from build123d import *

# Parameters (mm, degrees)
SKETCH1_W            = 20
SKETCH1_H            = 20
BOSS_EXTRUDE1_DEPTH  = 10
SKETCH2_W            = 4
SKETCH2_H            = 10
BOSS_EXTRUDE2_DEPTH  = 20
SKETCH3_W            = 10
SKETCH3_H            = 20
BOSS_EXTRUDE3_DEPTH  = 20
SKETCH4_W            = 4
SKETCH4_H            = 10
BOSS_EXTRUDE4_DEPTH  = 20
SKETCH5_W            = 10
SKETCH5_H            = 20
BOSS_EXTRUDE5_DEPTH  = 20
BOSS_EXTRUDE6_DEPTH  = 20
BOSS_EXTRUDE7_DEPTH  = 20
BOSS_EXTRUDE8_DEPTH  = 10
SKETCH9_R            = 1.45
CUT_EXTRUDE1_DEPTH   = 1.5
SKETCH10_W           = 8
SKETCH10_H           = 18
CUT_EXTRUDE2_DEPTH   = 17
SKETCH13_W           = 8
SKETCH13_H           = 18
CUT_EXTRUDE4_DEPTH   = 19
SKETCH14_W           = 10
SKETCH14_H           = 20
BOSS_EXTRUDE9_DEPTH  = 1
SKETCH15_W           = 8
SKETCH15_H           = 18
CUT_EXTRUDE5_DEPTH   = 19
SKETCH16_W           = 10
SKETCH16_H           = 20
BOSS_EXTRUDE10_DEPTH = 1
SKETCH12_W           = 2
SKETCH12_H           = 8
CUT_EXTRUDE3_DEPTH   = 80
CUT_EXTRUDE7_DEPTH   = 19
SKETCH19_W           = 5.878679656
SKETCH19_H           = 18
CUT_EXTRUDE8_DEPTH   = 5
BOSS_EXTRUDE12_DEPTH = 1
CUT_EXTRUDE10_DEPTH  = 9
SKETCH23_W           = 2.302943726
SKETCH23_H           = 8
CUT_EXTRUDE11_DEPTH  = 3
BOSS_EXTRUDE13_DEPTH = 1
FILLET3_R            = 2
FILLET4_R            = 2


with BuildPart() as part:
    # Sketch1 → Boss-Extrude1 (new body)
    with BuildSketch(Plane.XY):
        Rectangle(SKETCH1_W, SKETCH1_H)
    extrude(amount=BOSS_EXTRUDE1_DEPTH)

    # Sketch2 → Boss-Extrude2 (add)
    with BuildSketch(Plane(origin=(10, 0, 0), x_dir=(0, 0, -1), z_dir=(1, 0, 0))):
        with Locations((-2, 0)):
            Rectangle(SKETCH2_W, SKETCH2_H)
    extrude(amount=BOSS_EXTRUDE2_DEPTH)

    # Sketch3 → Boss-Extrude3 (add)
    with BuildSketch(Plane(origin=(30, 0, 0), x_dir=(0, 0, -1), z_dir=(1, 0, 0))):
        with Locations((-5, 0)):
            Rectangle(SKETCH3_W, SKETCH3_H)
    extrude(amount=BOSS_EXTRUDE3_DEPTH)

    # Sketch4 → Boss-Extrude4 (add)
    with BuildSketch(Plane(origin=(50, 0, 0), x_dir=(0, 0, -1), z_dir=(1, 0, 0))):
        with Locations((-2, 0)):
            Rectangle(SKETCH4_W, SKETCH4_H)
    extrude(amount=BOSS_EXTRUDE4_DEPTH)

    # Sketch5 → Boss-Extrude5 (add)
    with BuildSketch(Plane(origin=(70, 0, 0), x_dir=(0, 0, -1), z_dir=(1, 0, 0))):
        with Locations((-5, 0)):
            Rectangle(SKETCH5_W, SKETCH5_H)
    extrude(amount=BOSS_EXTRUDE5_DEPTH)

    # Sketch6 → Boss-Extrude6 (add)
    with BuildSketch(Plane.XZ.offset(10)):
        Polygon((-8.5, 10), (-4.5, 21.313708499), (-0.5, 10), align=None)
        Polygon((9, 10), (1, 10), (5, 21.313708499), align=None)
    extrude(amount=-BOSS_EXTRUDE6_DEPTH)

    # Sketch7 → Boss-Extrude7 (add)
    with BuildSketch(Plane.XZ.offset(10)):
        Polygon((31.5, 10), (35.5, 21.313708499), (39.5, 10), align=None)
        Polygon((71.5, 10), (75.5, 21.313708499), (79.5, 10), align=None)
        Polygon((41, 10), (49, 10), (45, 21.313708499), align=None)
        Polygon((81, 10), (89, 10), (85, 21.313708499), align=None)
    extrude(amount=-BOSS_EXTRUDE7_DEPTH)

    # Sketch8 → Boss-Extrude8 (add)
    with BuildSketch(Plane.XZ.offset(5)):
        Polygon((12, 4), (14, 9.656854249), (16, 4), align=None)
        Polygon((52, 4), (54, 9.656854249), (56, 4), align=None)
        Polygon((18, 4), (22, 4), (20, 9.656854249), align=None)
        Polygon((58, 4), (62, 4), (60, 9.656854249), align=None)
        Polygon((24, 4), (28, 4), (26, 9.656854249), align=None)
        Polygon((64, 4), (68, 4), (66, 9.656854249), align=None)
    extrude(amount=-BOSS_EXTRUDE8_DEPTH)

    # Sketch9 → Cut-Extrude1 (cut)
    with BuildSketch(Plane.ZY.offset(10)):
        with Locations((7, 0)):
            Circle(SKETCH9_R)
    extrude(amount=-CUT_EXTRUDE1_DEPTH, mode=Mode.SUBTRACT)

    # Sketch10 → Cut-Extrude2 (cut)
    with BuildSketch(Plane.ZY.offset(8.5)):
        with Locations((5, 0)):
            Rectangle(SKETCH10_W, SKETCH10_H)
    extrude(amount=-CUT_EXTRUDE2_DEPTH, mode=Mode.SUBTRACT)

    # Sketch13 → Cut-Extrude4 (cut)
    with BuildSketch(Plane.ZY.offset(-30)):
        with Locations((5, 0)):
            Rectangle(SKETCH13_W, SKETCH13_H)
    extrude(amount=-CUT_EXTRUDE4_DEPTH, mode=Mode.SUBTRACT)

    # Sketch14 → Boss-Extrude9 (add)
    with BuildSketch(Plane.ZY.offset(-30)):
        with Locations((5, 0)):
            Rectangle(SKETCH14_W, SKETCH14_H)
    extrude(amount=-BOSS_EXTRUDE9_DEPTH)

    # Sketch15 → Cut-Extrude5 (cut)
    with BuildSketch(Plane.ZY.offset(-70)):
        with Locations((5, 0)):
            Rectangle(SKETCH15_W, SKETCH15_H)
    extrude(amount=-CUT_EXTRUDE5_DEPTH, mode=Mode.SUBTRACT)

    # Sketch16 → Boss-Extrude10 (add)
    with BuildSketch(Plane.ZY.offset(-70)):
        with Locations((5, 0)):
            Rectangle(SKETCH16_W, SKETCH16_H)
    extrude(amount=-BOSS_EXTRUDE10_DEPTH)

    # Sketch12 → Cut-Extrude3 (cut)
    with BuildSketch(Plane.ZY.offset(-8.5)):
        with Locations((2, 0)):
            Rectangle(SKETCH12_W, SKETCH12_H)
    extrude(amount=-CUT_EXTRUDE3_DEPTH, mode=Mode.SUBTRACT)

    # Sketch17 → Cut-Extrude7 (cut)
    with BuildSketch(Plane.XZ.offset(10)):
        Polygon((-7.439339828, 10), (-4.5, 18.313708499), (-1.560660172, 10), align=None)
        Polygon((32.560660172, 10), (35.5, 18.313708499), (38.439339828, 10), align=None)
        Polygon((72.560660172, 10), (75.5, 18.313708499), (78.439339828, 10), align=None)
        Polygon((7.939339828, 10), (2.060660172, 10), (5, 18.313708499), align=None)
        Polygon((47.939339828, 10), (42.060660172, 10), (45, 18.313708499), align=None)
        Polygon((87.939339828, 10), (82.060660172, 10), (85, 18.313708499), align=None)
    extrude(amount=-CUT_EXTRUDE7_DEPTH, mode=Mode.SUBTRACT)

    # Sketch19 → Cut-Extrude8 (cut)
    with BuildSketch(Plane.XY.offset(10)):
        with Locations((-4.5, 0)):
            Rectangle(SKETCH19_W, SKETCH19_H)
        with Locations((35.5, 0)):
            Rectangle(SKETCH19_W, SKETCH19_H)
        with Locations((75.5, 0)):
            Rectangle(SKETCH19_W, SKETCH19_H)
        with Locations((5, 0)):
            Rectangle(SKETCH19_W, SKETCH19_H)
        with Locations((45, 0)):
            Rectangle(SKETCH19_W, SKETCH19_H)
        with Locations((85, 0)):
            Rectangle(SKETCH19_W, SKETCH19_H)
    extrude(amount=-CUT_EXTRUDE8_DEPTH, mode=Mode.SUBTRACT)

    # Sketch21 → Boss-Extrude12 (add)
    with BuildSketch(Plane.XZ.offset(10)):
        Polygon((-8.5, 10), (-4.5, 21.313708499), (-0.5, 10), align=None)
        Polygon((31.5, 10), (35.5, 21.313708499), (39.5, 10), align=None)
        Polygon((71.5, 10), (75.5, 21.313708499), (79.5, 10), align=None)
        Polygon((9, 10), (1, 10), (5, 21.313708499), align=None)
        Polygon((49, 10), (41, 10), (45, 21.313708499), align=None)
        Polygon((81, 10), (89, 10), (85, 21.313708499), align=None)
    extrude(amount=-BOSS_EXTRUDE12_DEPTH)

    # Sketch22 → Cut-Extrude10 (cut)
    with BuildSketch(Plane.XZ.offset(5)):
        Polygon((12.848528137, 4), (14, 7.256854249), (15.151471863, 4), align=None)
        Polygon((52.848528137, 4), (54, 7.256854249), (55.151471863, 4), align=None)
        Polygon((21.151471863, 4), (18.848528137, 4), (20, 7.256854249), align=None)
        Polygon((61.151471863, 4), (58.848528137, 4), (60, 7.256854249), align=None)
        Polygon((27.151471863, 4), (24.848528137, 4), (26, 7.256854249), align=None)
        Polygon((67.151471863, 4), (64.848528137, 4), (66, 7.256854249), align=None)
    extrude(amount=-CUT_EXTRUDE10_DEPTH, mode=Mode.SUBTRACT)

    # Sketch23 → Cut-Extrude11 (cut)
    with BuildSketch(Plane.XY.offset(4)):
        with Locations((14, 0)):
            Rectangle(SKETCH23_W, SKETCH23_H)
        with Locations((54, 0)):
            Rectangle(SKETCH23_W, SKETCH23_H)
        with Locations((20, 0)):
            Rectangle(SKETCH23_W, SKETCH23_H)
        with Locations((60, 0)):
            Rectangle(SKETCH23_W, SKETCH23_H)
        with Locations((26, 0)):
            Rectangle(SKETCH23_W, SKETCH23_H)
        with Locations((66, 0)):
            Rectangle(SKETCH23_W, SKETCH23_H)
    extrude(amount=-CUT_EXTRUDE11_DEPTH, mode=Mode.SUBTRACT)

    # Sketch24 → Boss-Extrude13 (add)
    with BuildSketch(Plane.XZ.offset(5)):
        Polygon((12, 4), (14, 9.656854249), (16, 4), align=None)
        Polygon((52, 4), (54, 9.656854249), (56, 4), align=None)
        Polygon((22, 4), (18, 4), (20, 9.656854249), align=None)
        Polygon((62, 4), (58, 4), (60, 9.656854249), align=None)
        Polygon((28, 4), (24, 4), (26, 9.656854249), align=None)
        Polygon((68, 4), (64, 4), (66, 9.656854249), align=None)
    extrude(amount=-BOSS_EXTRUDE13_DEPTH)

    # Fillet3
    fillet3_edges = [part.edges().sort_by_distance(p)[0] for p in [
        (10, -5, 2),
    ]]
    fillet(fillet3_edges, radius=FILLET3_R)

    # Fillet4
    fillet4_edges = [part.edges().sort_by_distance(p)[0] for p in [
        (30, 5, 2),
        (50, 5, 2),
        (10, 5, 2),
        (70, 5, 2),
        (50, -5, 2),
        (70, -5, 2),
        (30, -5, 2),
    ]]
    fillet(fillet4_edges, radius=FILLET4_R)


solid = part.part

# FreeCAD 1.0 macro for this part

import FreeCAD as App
import Part
import Sketcher
from FreeCAD import Vector
Q = App.Units.Quantity


def edges_at(feature, points):
    """Names of the edges that pass closest to the given points."""
    edges = feature.Shape.Edges
    near = lambda p: min(range(len(edges)), key=lambda i: edges[i].distToShape(Part.Vertex(*p))[0])
    return sorted({f"Edge{near(p) + 1}" for p in points})


def add_polygon(sketch, points):
    """Adds a closed chain of lines whose ends are joined by coincident constraints."""
    first, n = sketch.GeometryCount, len(points)
    for a, b in zip(points, points[1:] + points[:1]):
        sketch.addGeometry(Part.LineSegment(App.Vector(*a, 0), App.Vector(*b, 0)), False)
    for i in range(n):
        sketch.addConstraint(Sketcher.Constraint("Coincident", first + i, 2, first + (i + 1) % n, 1))

doc = App.newDocument("Part")
body = doc.addObject("PartDesign::Body", "Body")

# Sketch on XY plane
sketch1 = doc.addObject("Sketcher::SketchObject", "Sketch")
body.addObject(sketch1)
sketch1.AttachmentSupport = (doc.XY_Plane, [""])
sketch1.MapMode = "FlatFace"
add_polygon(sketch1, [(-10, 10), (-10, -10), (10, -10), (10, 10)])  # lines 0-3
sketch1.addConstraint(Sketcher.Constraint("Vertical", 0))
sketch1.addConstraint(Sketcher.Constraint("Horizontal", 1))
sketch1.addConstraint(Sketcher.Constraint("Vertical", 2))
sketch1.addConstraint(Sketcher.Constraint("Horizontal", 3))
sketch1.addConstraint(Sketcher.Constraint("Symmetric", 0, 2, 2, 2, -1, 1))
sketch1.addConstraint(Sketcher.Constraint("Equal", 3, 0))
sketch1.addConstraint(Sketcher.Constraint("DistanceX", 1, 1, 1, 2, Q("20 mm")))
pad1 = doc.addObject("PartDesign::Pad", "Pad")
body.addObject(pad1)
pad1.Profile = sketch1
pad1.Length = 10

# Sketch on YZ plane
sketch2 = doc.addObject("Sketcher::SketchObject", "Sketch001")
body.addObject(sketch2)
sketch2.AttachmentSupport = (doc.YZ_Plane, [""])
sketch2.MapMode = "FlatFace"
sketch2.AttachmentOffset = App.Placement(Vector(0, 0, 10), App.Rotation())
add_polygon(sketch2, [(5, 4), (-5, 4), (-5, 0), (5, 0)])  # lines 0-3
sketch2.addConstraint(Sketcher.Constraint("Horizontal", 0))
sketch2.addConstraint(Sketcher.Constraint("Vertical", 1))
sketch2.addConstraint(Sketcher.Constraint("Horizontal", 2))
sketch2.addConstraint(Sketcher.Constraint("Vertical", 3))
sketch2.addConstraint(Sketcher.Constraint("Symmetric", 1, 2, 2, 2, -1, 1))
sketch2.addConstraint(Sketcher.Constraint("DistanceX", 0, 2, 0, 1, Q("10 mm")))
sketch2.addConstraint(Sketcher.Constraint("DistanceY", 1, 2, 1, 1, Q("4 mm")))
pad2 = doc.addObject("PartDesign::Pad", "Pad001")
body.addObject(pad2)
pad2.Profile = sketch2
pad2.Length = 20

# Sketch on YZ plane
sketch3 = doc.addObject("Sketcher::SketchObject", "Sketch002")
body.addObject(sketch3)
sketch3.AttachmentSupport = (doc.YZ_Plane, [""])
sketch3.MapMode = "FlatFace"
sketch3.AttachmentOffset = App.Placement(Vector(0, 0, 30), App.Rotation())
add_polygon(sketch3, [(10, 10), (-10, 10), (-10, 0), (10, 0)])  # lines 0-3
sketch3.addConstraint(Sketcher.Constraint("Horizontal", 0))
sketch3.addConstraint(Sketcher.Constraint("Vertical", 1))
sketch3.addConstraint(Sketcher.Constraint("Horizontal", 2))
sketch3.addConstraint(Sketcher.Constraint("Vertical", 3))
sketch3.addConstraint(Sketcher.Constraint("Symmetric", 1, 2, 2, 2, -1, 1))
sketch3.addConstraint(Sketcher.Constraint("DistanceX", 0, 2, 0, 1, Q("20 mm")))
sketch3.addConstraint(Sketcher.Constraint("DistanceY", 1, 2, 1, 1, Q("10 mm")))
pad3 = doc.addObject("PartDesign::Pad", "Pad002")
body.addObject(pad3)
pad3.Profile = sketch3
pad3.Length = 20

# Sketch on YZ plane
sketch4 = doc.addObject("Sketcher::SketchObject", "Sketch003")
body.addObject(sketch4)
sketch4.AttachmentSupport = (doc.YZ_Plane, [""])
sketch4.MapMode = "FlatFace"
sketch4.AttachmentOffset = App.Placement(Vector(0, 0, 50), App.Rotation())
add_polygon(sketch4, [(5, 4), (-5, 4), (-5, 0), (5, 0)])  # lines 0-3
sketch4.addConstraint(Sketcher.Constraint("Horizontal", 0))
sketch4.addConstraint(Sketcher.Constraint("Vertical", 1))
sketch4.addConstraint(Sketcher.Constraint("Horizontal", 2))
sketch4.addConstraint(Sketcher.Constraint("Vertical", 3))
sketch4.addConstraint(Sketcher.Constraint("Symmetric", 1, 2, 2, 2, -1, 1))
sketch4.addConstraint(Sketcher.Constraint("DistanceX", 0, 2, 0, 1, Q("10 mm")))
sketch4.addConstraint(Sketcher.Constraint("DistanceY", 1, 2, 1, 1, Q("4 mm")))
pad4 = doc.addObject("PartDesign::Pad", "Pad003")
body.addObject(pad4)
pad4.Profile = sketch4
pad4.Length = 20

# Sketch on YZ plane
sketch5 = doc.addObject("Sketcher::SketchObject", "Sketch004")
body.addObject(sketch5)
sketch5.AttachmentSupport = (doc.YZ_Plane, [""])
sketch5.MapMode = "FlatFace"
sketch5.AttachmentOffset = App.Placement(Vector(0, 0, 70), App.Rotation())
add_polygon(sketch5, [(10, 10), (-10, 10), (-10, 0), (10, 0)])  # lines 0-3
sketch5.addConstraint(Sketcher.Constraint("Horizontal", 0))
sketch5.addConstraint(Sketcher.Constraint("Vertical", 1))
sketch5.addConstraint(Sketcher.Constraint("Horizontal", 2))
sketch5.addConstraint(Sketcher.Constraint("Vertical", 3))
sketch5.addConstraint(Sketcher.Constraint("Symmetric", 1, 2, 2, 2, -1, 1))
sketch5.addConstraint(Sketcher.Constraint("DistanceX", 0, 2, 0, 1, Q("20 mm")))
sketch5.addConstraint(Sketcher.Constraint("DistanceY", 1, 2, 1, 1, Q("10 mm")))
pad5 = doc.addObject("PartDesign::Pad", "Pad004")
body.addObject(pad5)
pad5.Profile = sketch5
pad5.Length = 20

# Sketch on XZ plane
sketch6 = doc.addObject("Sketcher::SketchObject", "Sketch005")
body.addObject(sketch6)
sketch6.AttachmentSupport = (doc.XZ_Plane, [""])
sketch6.MapMode = "FlatFace"
sketch6.AttachmentOffset = App.Placement(Vector(0, 0, 10), App.Rotation())
add_polygon(sketch6, [(-4, 21), (-8, 10), (0, 10)])  # lines 0-2
add_polygon(sketch6, [(1, 10), (9, 10), (5, 21)])  # lines 3-5
sketch6.addConstraint(Sketcher.Constraint("Horizontal", 1))
sketch6.addConstraint(Sketcher.Constraint("Horizontal", 3))
sketch6.addConstraint(Sketcher.Constraint("Parallel", 2, 4))
sketch6.addConstraint(Sketcher.Constraint("Parallel", 0, 5))
sketch6.addConstraint(Sketcher.Constraint("Horizontal", 1, 2, 3, 2))
sketch6.addConstraint(Sketcher.Constraint("Horizontal", 2, 2, 4, 2))
sketch6.addConstraint(Sketcher.Constraint("Equal", 0, 2))
sketch6.addConstraint(Sketcher.Constraint("DistanceX", 1, 1, 1, 2, Q("8 mm")))
sketch6.addConstraint(Sketcher.Constraint("Distance", 0, Q("12 mm")))
sketch6.addConstraint(Sketcher.Constraint("DistanceY", -1, 1, 0, 2, Q("10 mm")))
sketch6.addConstraint(Sketcher.Constraint("DistanceX", -1, 1, 3, 2, Q("9 mm")))
sketch6.addConstraint(Sketcher.Constraint("DistanceX", 0, 2, -1, 1, Q("8.5 mm")))
pad6 = doc.addObject("PartDesign::Pad", "Pad005")
body.addObject(pad6)
pad6.Profile = sketch6
pad6.Length = 20
pad6.Reversed = True

# Sketch on XZ plane
sketch7 = doc.addObject("Sketcher::SketchObject", "Sketch006")
body.addObject(sketch7)
sketch7.AttachmentSupport = (doc.XZ_Plane, [""])
sketch7.MapMode = "FlatFace"
sketch7.AttachmentOffset = App.Placement(Vector(0, 0, 10), App.Rotation())
add_polygon(sketch7, [(36, 21), (32, 10), (40, 10)])  # lines 0-2
add_polygon(sketch7, [(76, 21), (72, 10), (80, 10)])  # lines 3-5
add_polygon(sketch7, [(41, 10), (49, 10), (45, 21)])  # lines 6-8
add_polygon(sketch7, [(81, 10), (89, 10), (85, 21)])  # lines 9-11
sketch7.addConstraint(Sketcher.Constraint("Horizontal", 1))
sketch7.addConstraint(Sketcher.Constraint("Horizontal", 4))
sketch7.addConstraint(Sketcher.Constraint("Horizontal", 6))
sketch7.addConstraint(Sketcher.Constraint("Horizontal", 9))
sketch7.addConstraint(Sketcher.Constraint("Parallel", 0, 3))
sketch7.addConstraint(Sketcher.Constraint("Parallel", 2, 5))
sketch7.addConstraint(Sketcher.Constraint("Parallel", 5, 7))
sketch7.addConstraint(Sketcher.Constraint("Parallel", 3, 8))
sketch7.addConstraint(Sketcher.Constraint("Parallel", 7, 10))
sketch7.addConstraint(Sketcher.Constraint("Parallel", 8, 11))
sketch7.addConstraint(Sketcher.Constraint("Horizontal", 1, 2, 3, 2))
sketch7.addConstraint(Sketcher.Constraint("Horizontal", 2, 2, 5, 2))
sketch7.addConstraint(Sketcher.Constraint("Horizontal", 4, 2, 6, 2))
sketch7.addConstraint(Sketcher.Constraint("Horizontal", 5, 2, 7, 2))
sketch7.addConstraint(Sketcher.Constraint("Horizontal", 8, 2, 9, 2))
sketch7.addConstraint(Sketcher.Constraint("Horizontal", 7, 2, 10, 2))
sketch7.addConstraint(Sketcher.Constraint("Equal", 0, 2))
sketch7.addConstraint(Sketcher.Constraint("DistanceX", 1, 1, 1, 2, Q("8 mm")))
sketch7.addConstraint(Sketcher.Constraint("Distance", 0, Q("12 mm")))
sketch7.addConstraint(Sketcher.Constraint("DistanceY", -1, 1, 0, 2, Q("10 mm")))
sketch7.addConstraint(Sketcher.Constraint("DistanceX", -1, 1, 6, 2, Q("49 mm")))
sketch7.addConstraint(Sketcher.Constraint("DistanceX", -1, 1, 9, 2, Q("89 mm")))
sketch7.addConstraint(Sketcher.Constraint("DistanceX", 1, 2, 3, 2, Q("32 mm")))
sketch7.addConstraint(Sketcher.Constraint("DistanceX", -1, 1, 0, 2, Q("31.5 mm")))
pad7 = doc.addObject("PartDesign::Pad", "Pad006")
body.addObject(pad7)
pad7.Profile = sketch7
pad7.Length = 20
pad7.Reversed = True

# Sketch on XZ plane
sketch8 = doc.addObject("Sketcher::SketchObject", "Sketch007")
body.addObject(sketch8)
sketch8.AttachmentSupport = (doc.XZ_Plane, [""])
sketch8.MapMode = "FlatFace"
sketch8.AttachmentOffset = App.Placement(Vector(0, 0, 5), App.Rotation())
add_polygon(sketch8, [(14, 9.7), (12, 4), (16, 4)])  # lines 0-2
add_polygon(sketch8, [(54, 9.7), (52, 4), (56, 4)])  # lines 3-5
add_polygon(sketch8, [(18, 4), (22, 4), (20, 9.7)])  # lines 6-8
add_polygon(sketch8, [(58, 4), (62, 4), (60, 9.7)])  # lines 9-11
add_polygon(sketch8, [(24, 4), (28, 4), (26, 9.7)])  # lines 12-14
add_polygon(sketch8, [(64, 4), (68, 4), (66, 9.7)])  # lines 15-17
sketch8.addConstraint(Sketcher.Constraint("Horizontal", 1))
sketch8.addConstraint(Sketcher.Constraint("Horizontal", 4))
sketch8.addConstraint(Sketcher.Constraint("Horizontal", 6))
sketch8.addConstraint(Sketcher.Constraint("Horizontal", 9))
sketch8.addConstraint(Sketcher.Constraint("Horizontal", 12))
sketch8.addConstraint(Sketcher.Constraint("Horizontal", 15))
sketch8.addConstraint(Sketcher.Constraint("Parallel", 0, 3))
sketch8.addConstraint(Sketcher.Constraint("Parallel", 2, 5))
sketch8.addConstraint(Sketcher.Constraint("Parallel", 5, 7))
sketch8.addConstraint(Sketcher.Constraint("Parallel", 3, 8))
sketch8.addConstraint(Sketcher.Constraint("Parallel", 7, 10))
sketch8.addConstraint(Sketcher.Constraint("Parallel", 8, 11))
sketch8.addConstraint(Sketcher.Constraint("Parallel", 10, 13))
sketch8.addConstraint(Sketcher.Constraint("Parallel", 11, 14))
sketch8.addConstraint(Sketcher.Constraint("Parallel", 13, 16))
sketch8.addConstraint(Sketcher.Constraint("Parallel", 14, 17))
sketch8.addConstraint(Sketcher.Constraint("Horizontal", 1, 2, 3, 2))
sketch8.addConstraint(Sketcher.Constraint("Horizontal", 2, 2, 5, 2))
sketch8.addConstraint(Sketcher.Constraint("Horizontal", 4, 2, 6, 2))
sketch8.addConstraint(Sketcher.Constraint("Horizontal", 5, 2, 7, 2))
sketch8.addConstraint(Sketcher.Constraint("Horizontal", 8, 2, 9, 2))
sketch8.addConstraint(Sketcher.Constraint("Horizontal", 7, 2, 10, 2))
sketch8.addConstraint(Sketcher.Constraint("Horizontal", 11, 2, 12, 2))
sketch8.addConstraint(Sketcher.Constraint("Horizontal", 10, 2, 13, 2))
sketch8.addConstraint(Sketcher.Constraint("Horizontal", 14, 2, 15, 2))
sketch8.addConstraint(Sketcher.Constraint("Horizontal", 13, 2, 16, 2))
sketch8.addConstraint(Sketcher.Constraint("Equal", 0, 2))
sketch8.addConstraint(Sketcher.Constraint("DistanceX", 1, 1, 1, 2, Q("4 mm")))
sketch8.addConstraint(Sketcher.Constraint("Distance", 0, Q("6 mm")))
sketch8.addConstraint(Sketcher.Constraint("DistanceX", -1, 1, 0, 2, Q("12 mm")))
sketch8.addConstraint(Sketcher.Constraint("DistanceY", -1, 1, 0, 2, Q("4 mm")))
sketch8.addConstraint(Sketcher.Constraint("DistanceX", -1, 1, 3, 2, Q("52 mm")))
sketch8.addConstraint(Sketcher.Constraint("DistanceX", -1, 1, 6, 2, Q("22 mm")))
sketch8.addConstraint(Sketcher.Constraint("DistanceX", -1, 1, 9, 2, Q("62 mm")))
sketch8.addConstraint(Sketcher.Constraint("DistanceX", -1, 1, 12, 2, Q("28 mm")))
sketch8.addConstraint(Sketcher.Constraint("DistanceX", -1, 1, 15, 2, Q("68 mm")))
pad8 = doc.addObject("PartDesign::Pad", "Pad007")
body.addObject(pad8)
pad8.Profile = sketch8
pad8.Length = 10
pad8.Reversed = True

# Sketch on YZ plane
sketch9 = doc.addObject("Sketcher::SketchObject", "Sketch008")
body.addObject(sketch9)
sketch9.AttachmentSupport = (doc.YZ_Plane, [""])
sketch9.MapMode = "FlatFace"
sketch9.AttachmentOffset = App.Placement(Vector(0, 0, -10), App.Rotation())
sketch9.addGeometry(Part.Circle(Vector(0, 7, 0), Vector(0, 0, 1), 1.4), False)
sketch9.addConstraint(Sketcher.Constraint("PointOnObject", 0, 3, -2))
sketch9.addConstraint(Sketcher.Constraint("Diameter", 0, Q("2.9 mm")))
sketch9.addConstraint(Sketcher.Constraint("DistanceY", -1, 1, 0, 3, Q("7 mm")))
pocket1 = doc.addObject("PartDesign::Pocket", "Pocket")
body.addObject(pocket1)
pocket1.Profile = sketch9
pocket1.Length = 1.5
pocket1.Reversed = True

# Sketch on YZ plane
sketch10 = doc.addObject("Sketcher::SketchObject", "Sketch009")
body.addObject(sketch10)
sketch10.AttachmentSupport = (doc.YZ_Plane, [""])
sketch10.MapMode = "FlatFace"
sketch10.AttachmentOffset = App.Placement(Vector(0, 0, -8.5), App.Rotation())
add_polygon(sketch10, [(9, 1), (-9, 1), (-9, 9), (9, 9)])  # lines 0-3
sketch10.addConstraint(Sketcher.Constraint("Horizontal", 0))
sketch10.addConstraint(Sketcher.Constraint("Vertical", 1))
sketch10.addConstraint(Sketcher.Constraint("Horizontal", 2))
sketch10.addConstraint(Sketcher.Constraint("Vertical", 3))
sketch10.addConstraint(Sketcher.Constraint("DistanceX", 0, 2, 0, 1, Q("18 mm")))
sketch10.addConstraint(Sketcher.Constraint("DistanceY", 1, 1, 1, 2, Q("8 mm")))
sketch10.addConstraint(Sketcher.Constraint("DistanceX", 0, 2, -1, 1, Q("9 mm")))
sketch10.addConstraint(Sketcher.Constraint("DistanceY", -1, 1, 0, 2, Q("1 mm")))
pocket2 = doc.addObject("PartDesign::Pocket", "Pocket001")
body.addObject(pocket2)
pocket2.Profile = sketch10
pocket2.Length = 17
pocket2.Reversed = True

# Sketch on YZ plane
sketch11 = doc.addObject("Sketcher::SketchObject", "Sketch010")
body.addObject(sketch11)
sketch11.AttachmentSupport = (doc.YZ_Plane, [""])
sketch11.MapMode = "FlatFace"
sketch11.AttachmentOffset = App.Placement(Vector(0, 0, 30), App.Rotation())
add_polygon(sketch11, [(9, 1), (-9, 1), (-9, 9), (9, 9)])  # lines 0-3
sketch11.addConstraint(Sketcher.Constraint("Horizontal", 0))
sketch11.addConstraint(Sketcher.Constraint("Vertical", 1))
sketch11.addConstraint(Sketcher.Constraint("Horizontal", 2))
sketch11.addConstraint(Sketcher.Constraint("Vertical", 3))
sketch11.addConstraint(Sketcher.Constraint("DistanceX", 0, 2, 0, 1, Q("18 mm")))
sketch11.addConstraint(Sketcher.Constraint("DistanceY", 1, 1, 1, 2, Q("8 mm")))
sketch11.addConstraint(Sketcher.Constraint("DistanceX", 0, 2, -1, 1, Q("9 mm")))
sketch11.addConstraint(Sketcher.Constraint("DistanceY", -1, 1, 0, 2, Q("1 mm")))
pocket3 = doc.addObject("PartDesign::Pocket", "Pocket002")
body.addObject(pocket3)
pocket3.Profile = sketch11
pocket3.Length = 19
pocket3.Reversed = True

# Sketch on YZ plane
sketch12 = doc.addObject("Sketcher::SketchObject", "Sketch011")
body.addObject(sketch12)
sketch12.AttachmentSupport = (doc.YZ_Plane, [""])
sketch12.MapMode = "FlatFace"
sketch12.AttachmentOffset = App.Placement(Vector(0, 0, 30), App.Rotation())
add_polygon(sketch12, [(10, 0), (-10, 0), (-10, 10), (10, 10)])  # lines 0-3
sketch12.addConstraint(Sketcher.Constraint("Horizontal", 0))
sketch12.addConstraint(Sketcher.Constraint("Vertical", 1))
sketch12.addConstraint(Sketcher.Constraint("Horizontal", 2))
sketch12.addConstraint(Sketcher.Constraint("Vertical", 3))
sketch12.addConstraint(Sketcher.Constraint("Symmetric", 0, 2, 3, 2, -1, 1))
sketch12.addConstraint(Sketcher.Constraint("DistanceX", 0, 2, 0, 1, Q("20 mm")))
sketch12.addConstraint(Sketcher.Constraint("DistanceY", 1, 1, 1, 2, Q("10 mm")))
pad9 = doc.addObject("PartDesign::Pad", "Pad008")
body.addObject(pad9)
pad9.Profile = sketch12
pad9.Length = 1

# Sketch on YZ plane
sketch13 = doc.addObject("Sketcher::SketchObject", "Sketch012")
body.addObject(sketch13)
sketch13.AttachmentSupport = (doc.YZ_Plane, [""])
sketch13.MapMode = "FlatFace"
sketch13.AttachmentOffset = App.Placement(Vector(0, 0, 70), App.Rotation())
add_polygon(sketch13, [(9, 1), (-9, 1), (-9, 9), (9, 9)])  # lines 0-3
sketch13.addConstraint(Sketcher.Constraint("Horizontal", 0))
sketch13.addConstraint(Sketcher.Constraint("Vertical", 1))
sketch13.addConstraint(Sketcher.Constraint("Horizontal", 2))
sketch13.addConstraint(Sketcher.Constraint("Vertical", 3))
sketch13.addConstraint(Sketcher.Constraint("DistanceX", 0, 2, 0, 1, Q("18 mm")))
sketch13.addConstraint(Sketcher.Constraint("DistanceY", 1, 1, 1, 2, Q("8 mm")))
sketch13.addConstraint(Sketcher.Constraint("DistanceX", 0, 2, -1, 1, Q("9 mm")))
sketch13.addConstraint(Sketcher.Constraint("DistanceY", -1, 1, 0, 2, Q("1 mm")))
pocket4 = doc.addObject("PartDesign::Pocket", "Pocket003")
body.addObject(pocket4)
pocket4.Profile = sketch13
pocket4.Length = 19
pocket4.Reversed = True

# Sketch on YZ plane
sketch14 = doc.addObject("Sketcher::SketchObject", "Sketch013")
body.addObject(sketch14)
sketch14.AttachmentSupport = (doc.YZ_Plane, [""])
sketch14.MapMode = "FlatFace"
sketch14.AttachmentOffset = App.Placement(Vector(0, 0, 70), App.Rotation())
add_polygon(sketch14, [(10, 0), (-10, 0), (-10, 10), (10, 10)])  # lines 0-3
sketch14.addConstraint(Sketcher.Constraint("Horizontal", 0))
sketch14.addConstraint(Sketcher.Constraint("Vertical", 1))
sketch14.addConstraint(Sketcher.Constraint("Horizontal", 2))
sketch14.addConstraint(Sketcher.Constraint("Vertical", 3))
sketch14.addConstraint(Sketcher.Constraint("Symmetric", 0, 2, 3, 2, -1, 1))
sketch14.addConstraint(Sketcher.Constraint("DistanceX", 0, 2, 0, 1, Q("20 mm")))
sketch14.addConstraint(Sketcher.Constraint("DistanceY", 1, 1, 1, 2, Q("10 mm")))
pad10 = doc.addObject("PartDesign::Pad", "Pad009")
body.addObject(pad10)
pad10.Profile = sketch14
pad10.Length = 1

# Sketch on YZ plane
sketch15 = doc.addObject("Sketcher::SketchObject", "Sketch014")
body.addObject(sketch15)
sketch15.AttachmentSupport = (doc.YZ_Plane, [""])
sketch15.MapMode = "FlatFace"
sketch15.AttachmentOffset = App.Placement(Vector(0, 0, 8.5), App.Rotation())
add_polygon(sketch15, [(4, 1), (-4, 1), (-4, 3), (4, 3)])  # lines 0-3
sketch15.addConstraint(Sketcher.Constraint("Horizontal", 0))
sketch15.addConstraint(Sketcher.Constraint("Vertical", 1))
sketch15.addConstraint(Sketcher.Constraint("Horizontal", 2))
sketch15.addConstraint(Sketcher.Constraint("Vertical", 3))
sketch15.addConstraint(Sketcher.Constraint("DistanceX", 0, 2, 0, 1, Q("8 mm")))
sketch15.addConstraint(Sketcher.Constraint("DistanceY", 1, 1, 1, 2, Q("2 mm")))
sketch15.addConstraint(Sketcher.Constraint("DistanceX", 0, 2, -1, 1, Q("4 mm")))
sketch15.addConstraint(Sketcher.Constraint("DistanceY", -1, 1, 0, 2, Q("1 mm")))
pocket5 = doc.addObject("PartDesign::Pocket", "Pocket004")
body.addObject(pocket5)
pocket5.Profile = sketch15
pocket5.Length = 80
pocket5.Reversed = True

# Sketch on XZ plane
sketch16 = doc.addObject("Sketcher::SketchObject", "Sketch015")
body.addObject(sketch16)
sketch16.AttachmentSupport = (doc.XZ_Plane, [""])
sketch16.MapMode = "FlatFace"
sketch16.AttachmentOffset = App.Placement(Vector(0, 0, 10), App.Rotation())
add_polygon(sketch16, [(-4, 18), (-7, 10), (-2, 10)])  # lines 0-2
add_polygon(sketch16, [(36, 18), (33, 10), (38, 10)])  # lines 3-5
add_polygon(sketch16, [(76, 18), (73, 10), (78, 10)])  # lines 6-8
add_polygon(sketch16, [(2, 10), (8, 10), (5, 18)])  # lines 9-11
add_polygon(sketch16, [(42, 10), (48, 10), (45, 18)])  # lines 12-14
add_polygon(sketch16, [(82, 10), (88, 10), (85, 18)])  # lines 15-17
sketch16.addConstraint(Sketcher.Constraint("Horizontal", 1))
sketch16.addConstraint(Sketcher.Constraint("Horizontal", 4))
sketch16.addConstraint(Sketcher.Constraint("Horizontal", 7))
sketch16.addConstraint(Sketcher.Constraint("Horizontal", 9))
sketch16.addConstraint(Sketcher.Constraint("Horizontal", 12))
sketch16.addConstraint(Sketcher.Constraint("Horizontal", 15))
sketch16.addConstraint(Sketcher.Constraint("Parallel", 0, 3))
sketch16.addConstraint(Sketcher.Constraint("Parallel", 2, 5))
sketch16.addConstraint(Sketcher.Constraint("Parallel", 3, 6))
sketch16.addConstraint(Sketcher.Constraint("Parallel", 5, 8))
sketch16.addConstraint(Sketcher.Constraint("Parallel", 8, 10))
sketch16.addConstraint(Sketcher.Constraint("Parallel", 6, 11))
sketch16.addConstraint(Sketcher.Constraint("Parallel", 10, 13))
sketch16.addConstraint(Sketcher.Constraint("Parallel", 11, 14))
sketch16.addConstraint(Sketcher.Constraint("Parallel", 13, 16))
sketch16.addConstraint(Sketcher.Constraint("Parallel", 14, 17))
sketch16.addConstraint(Sketcher.Constraint("Horizontal", 1, 2, 3, 2))
sketch16.addConstraint(Sketcher.Constraint("Horizontal", 2, 2, 5, 2))
sketch16.addConstraint(Sketcher.Constraint("Horizontal", 4, 2, 6, 2))
sketch16.addConstraint(Sketcher.Constraint("Horizontal", 5, 2, 8, 2))
sketch16.addConstraint(Sketcher.Constraint("Horizontal", 7, 2, 9, 2))
sketch16.addConstraint(Sketcher.Constraint("Horizontal", 8, 2, 10, 2))
sketch16.addConstraint(Sketcher.Constraint("Horizontal", 11, 2, 12, 2))
sketch16.addConstraint(Sketcher.Constraint("Horizontal", 10, 2, 13, 2))
sketch16.addConstraint(Sketcher.Constraint("Horizontal", 14, 2, 15, 2))
sketch16.addConstraint(Sketcher.Constraint("Horizontal", 13, 2, 16, 2))
sketch16.addConstraint(Sketcher.Constraint("Equal", 0, 2))
sketch16.addConstraint(Sketcher.Constraint("DistanceY", -1, 1, 0, 2, Q("10 mm")))
sketch16.addConstraint(Sketcher.Constraint("DistanceX", -1, 1, 10, 2, Q("5 mm")))
sketch16.addConstraint(Sketcher.Constraint("DistanceX", -1, 1, 13, 2, Q("45 mm")))
sketch16.addConstraint(Sketcher.Constraint("DistanceX", -1, 1, 16, 2, Q("85 mm")))
sketch16.addConstraint(Sketcher.Constraint("DistanceX", 0, 2, 3, 2, Q("40 mm")))
sketch16.addConstraint(Sketcher.Constraint("DistanceX", 3, 2, 6, 2, Q("40 mm")))
sketch16.addConstraint(Sketcher.Constraint("DistanceX", 2, 2, -1, 1, Q("4.5 mm")))
sketch16.addConstraint(Sketcher.Constraint("DistanceX", 1, 1, 1, 2, Q("5.87868 mm")))
sketch16.addConstraint(Sketcher.Constraint("Distance", 0, Q("8.818019 mm")))
pocket6 = doc.addObject("PartDesign::Pocket", "Pocket005")
body.addObject(pocket6)
pocket6.Profile = sketch16
pocket6.Length = 19

# Sketch on XY plane
sketch17 = doc.addObject("Sketcher::SketchObject", "Sketch016")
body.addObject(sketch17)
sketch17.AttachmentSupport = (doc.XY_Plane, [""])
sketch17.MapMode = "FlatFace"
sketch17.AttachmentOffset = App.Placement(Vector(0, 0, 10), App.Rotation())
add_polygon(sketch17, [(-7, 9), (-7, -9), (-2, -9), (-2, 9)])  # lines 0-3
add_polygon(sketch17, [(33, 9), (33, -9), (38, -9), (38, 9)])  # lines 4-7
add_polygon(sketch17, [(73, 9), (73, -9), (78, -9), (78, 9)])  # lines 8-11
add_polygon(sketch17, [(2, 9), (2, -9), (8, -9), (8, 9)])  # lines 12-15
add_polygon(sketch17, [(42, 9), (42, -9), (48, -9), (48, 9)])  # lines 16-19
add_polygon(sketch17, [(82, 9), (82, -9), (88, -9), (88, 9)])  # lines 20-23
sketch17.addConstraint(Sketcher.Constraint("Vertical", 0))
sketch17.addConstraint(Sketcher.Constraint("Horizontal", 1))
sketch17.addConstraint(Sketcher.Constraint("Vertical", 2))
sketch17.addConstraint(Sketcher.Constraint("Horizontal", 3))
sketch17.addConstraint(Sketcher.Constraint("Vertical", 4))
sketch17.addConstraint(Sketcher.Constraint("Horizontal", 5))
sketch17.addConstraint(Sketcher.Constraint("Vertical", 6))
sketch17.addConstraint(Sketcher.Constraint("Horizontal", 7))
sketch17.addConstraint(Sketcher.Constraint("Vertical", 8))
sketch17.addConstraint(Sketcher.Constraint("Horizontal", 9))
sketch17.addConstraint(Sketcher.Constraint("Vertical", 10))
sketch17.addConstraint(Sketcher.Constraint("Horizontal", 11))
sketch17.addConstraint(Sketcher.Constraint("Vertical", 12))
sketch17.addConstraint(Sketcher.Constraint("Horizontal", 13))
sketch17.addConstraint(Sketcher.Constraint("Vertical", 14))
sketch17.addConstraint(Sketcher.Constraint("Horizontal", 15))
sketch17.addConstraint(Sketcher.Constraint("Vertical", 16))
sketch17.addConstraint(Sketcher.Constraint("Horizontal", 17))
sketch17.addConstraint(Sketcher.Constraint("Vertical", 18))
sketch17.addConstraint(Sketcher.Constraint("Horizontal", 19))
sketch17.addConstraint(Sketcher.Constraint("Vertical", 20))
sketch17.addConstraint(Sketcher.Constraint("Horizontal", 21))
sketch17.addConstraint(Sketcher.Constraint("Vertical", 22))
sketch17.addConstraint(Sketcher.Constraint("Horizontal", 23))
sketch17.addConstraint(Sketcher.Constraint("Horizontal", 1, 2, 4, 2))
sketch17.addConstraint(Sketcher.Constraint("Horizontal", 3, 2, 6, 2))
sketch17.addConstraint(Sketcher.Constraint("Horizontal", 5, 2, 8, 2))
sketch17.addConstraint(Sketcher.Constraint("Horizontal", 7, 2, 10, 2))
sketch17.addConstraint(Sketcher.Constraint("Horizontal", 9, 2, 12, 2))
sketch17.addConstraint(Sketcher.Constraint("Horizontal", 11, 2, 14, 2))
sketch17.addConstraint(Sketcher.Constraint("Horizontal", 13, 2, 16, 2))
sketch17.addConstraint(Sketcher.Constraint("Horizontal", 15, 2, 18, 2))
sketch17.addConstraint(Sketcher.Constraint("Horizontal", 17, 2, 20, 2))
sketch17.addConstraint(Sketcher.Constraint("Horizontal", 19, 2, 22, 2))
sketch17.addConstraint(Sketcher.Constraint("Equal", 3, 5))
sketch17.addConstraint(Sketcher.Constraint("Equal", 7, 9))
sketch17.addConstraint(Sketcher.Constraint("Equal", 11, 13))
sketch17.addConstraint(Sketcher.Constraint("Equal", 15, 17))
sketch17.addConstraint(Sketcher.Constraint("Equal", 19, 21))
sketch17.addConstraint(Sketcher.Constraint("DistanceY", 0, 2, 0, 1, Q("18 mm")))
sketch17.addConstraint(Sketcher.Constraint("DistanceY", 0, 2, -1, 1, Q("9 mm")))
sketch17.addConstraint(Sketcher.Constraint("DistanceX", 0, 2, 4, 2, Q("40 mm")))
sketch17.addConstraint(Sketcher.Constraint("DistanceX", 4, 2, 8, 2, Q("40 mm")))
sketch17.addConstraint(Sketcher.Constraint("DistanceX", 0, 2, 12, 2, Q("9.5 mm")))
sketch17.addConstraint(Sketcher.Constraint("DistanceX", 4, 2, 16, 2, Q("9.5 mm")))
sketch17.addConstraint(Sketcher.Constraint("DistanceX", 8, 2, 20, 2, Q("9.5 mm")))
sketch17.addConstraint(Sketcher.Constraint("DistanceX", 1, 1, 1, 2, Q("5.87868 mm")))
sketch17.addConstraint(Sketcher.Constraint("DistanceX", 0, 2, -1, 1, Q("7.43934 mm")))
pocket7 = doc.addObject("PartDesign::Pocket", "Pocket006")
body.addObject(pocket7)
pocket7.Profile = sketch17
pocket7.Length = 5

# Sketch on XZ plane
sketch18 = doc.addObject("Sketcher::SketchObject", "Sketch017")
body.addObject(sketch18)
sketch18.AttachmentSupport = (doc.XZ_Plane, [""])
sketch18.MapMode = "FlatFace"
sketch18.AttachmentOffset = App.Placement(Vector(0, 0, 10), App.Rotation())
add_polygon(sketch18, [(-4, 21), (-8, 10), (0, 10)])  # lines 0-2
add_polygon(sketch18, [(36, 21), (32, 10), (40, 10)])  # lines 3-5
add_polygon(sketch18, [(76, 21), (72, 10), (80, 10)])  # lines 6-8
add_polygon(sketch18, [(1, 10), (9, 10), (5, 21)])  # lines 9-11
add_polygon(sketch18, [(41, 10), (49, 10), (45, 21)])  # lines 12-14
add_polygon(sketch18, [(81, 10), (89, 10), (85, 21)])  # lines 15-17
sketch18.addConstraint(Sketcher.Constraint("Horizontal", 1))
sketch18.addConstraint(Sketcher.Constraint("Horizontal", 4))
sketch18.addConstraint(Sketcher.Constraint("Horizontal", 7))
sketch18.addConstraint(Sketcher.Constraint("Horizontal", 9))
sketch18.addConstraint(Sketcher.Constraint("Horizontal", 12))
sketch18.addConstraint(Sketcher.Constraint("Horizontal", 15))
sketch18.addConstraint(Sketcher.Constraint("Parallel", 0, 3))
sketch18.addConstraint(Sketcher.Constraint("Parallel", 2, 5))
sketch18.addConstraint(Sketcher.Constraint("Parallel", 3, 6))
sketch18.addConstraint(Sketcher.Constraint("Parallel", 5, 8))
sketch18.addConstraint(Sketcher.Constraint("Parallel", 8, 10))
sketch18.addConstraint(Sketcher.Constraint("Parallel", 6, 11))
sketch18.addConstraint(Sketcher.Constraint("Parallel", 10, 13))
sketch18.addConstraint(Sketcher.Constraint("Parallel", 11, 14))
sketch18.addConstraint(Sketcher.Constraint("Parallel", 13, 16))
sketch18.addConstraint(Sketcher.Constraint("Parallel", 14, 17))
sketch18.addConstraint(Sketcher.Constraint("Horizontal", 1, 2, 3, 2))
sketch18.addConstraint(Sketcher.Constraint("Horizontal", 2, 2, 5, 2))
sketch18.addConstraint(Sketcher.Constraint("Horizontal", 4, 2, 6, 2))
sketch18.addConstraint(Sketcher.Constraint("Horizontal", 5, 2, 8, 2))
sketch18.addConstraint(Sketcher.Constraint("Horizontal", 7, 2, 9, 2))
sketch18.addConstraint(Sketcher.Constraint("Horizontal", 8, 2, 10, 2))
sketch18.addConstraint(Sketcher.Constraint("Horizontal", 11, 2, 12, 2))
sketch18.addConstraint(Sketcher.Constraint("Horizontal", 10, 2, 13, 2))
sketch18.addConstraint(Sketcher.Constraint("Horizontal", 14, 2, 15, 2))
sketch18.addConstraint(Sketcher.Constraint("Horizontal", 13, 2, 16, 2))
sketch18.addConstraint(Sketcher.Constraint("Equal", 0, 2))
sketch18.addConstraint(Sketcher.Constraint("DistanceX", 1, 1, 1, 2, Q("8 mm")))
sketch18.addConstraint(Sketcher.Constraint("Distance", 0, Q("12 mm")))
sketch18.addConstraint(Sketcher.Constraint("DistanceY", -1, 1, 0, 2, Q("10 mm")))
sketch18.addConstraint(Sketcher.Constraint("DistanceX", -1, 1, 9, 2, Q("9 mm")))
sketch18.addConstraint(Sketcher.Constraint("DistanceX", -1, 1, 12, 2, Q("49 mm")))
sketch18.addConstraint(Sketcher.Constraint("DistanceX", -1, 1, 15, 2, Q("89 mm")))
sketch18.addConstraint(Sketcher.Constraint("DistanceX", 1, 2, 3, 2, Q("32 mm")))
sketch18.addConstraint(Sketcher.Constraint("DistanceX", 4, 2, 6, 2, Q("32 mm")))
sketch18.addConstraint(Sketcher.Constraint("DistanceX", 0, 2, -1, 1, Q("8.5 mm")))
pad11 = doc.addObject("PartDesign::Pad", "Pad010")
body.addObject(pad11)
pad11.Profile = sketch18
pad11.Length = 1
pad11.Reversed = True

# Sketch on XZ plane
sketch19 = doc.addObject("Sketcher::SketchObject", "Sketch018")
body.addObject(sketch19)
sketch19.AttachmentSupport = (doc.XZ_Plane, [""])
sketch19.MapMode = "FlatFace"
sketch19.AttachmentOffset = App.Placement(Vector(0, 0, 5), App.Rotation())
add_polygon(sketch19, [(14, 7.3), (12.8, 4), (15.2, 4)])  # lines 0-2
add_polygon(sketch19, [(54, 7.3), (52.8, 4), (55.2, 4)])  # lines 3-5
add_polygon(sketch19, [(18.8, 4), (21.2, 4), (20, 7.3)])  # lines 6-8
add_polygon(sketch19, [(58.8, 4), (61.2, 4), (60, 7.3)])  # lines 9-11
add_polygon(sketch19, [(24.8, 4), (27.2, 4), (26, 7.3)])  # lines 12-14
add_polygon(sketch19, [(64.8, 4), (67.2, 4), (66, 7.3)])  # lines 15-17
sketch19.addConstraint(Sketcher.Constraint("Horizontal", 1))
sketch19.addConstraint(Sketcher.Constraint("Horizontal", 4))
sketch19.addConstraint(Sketcher.Constraint("Horizontal", 6))
sketch19.addConstraint(Sketcher.Constraint("Horizontal", 9))
sketch19.addConstraint(Sketcher.Constraint("Horizontal", 12))
sketch19.addConstraint(Sketcher.Constraint("Horizontal", 15))
sketch19.addConstraint(Sketcher.Constraint("Parallel", 0, 3))
sketch19.addConstraint(Sketcher.Constraint("Parallel", 2, 5))
sketch19.addConstraint(Sketcher.Constraint("Parallel", 5, 7))
sketch19.addConstraint(Sketcher.Constraint("Parallel", 3, 8))
sketch19.addConstraint(Sketcher.Constraint("Parallel", 7, 10))
sketch19.addConstraint(Sketcher.Constraint("Parallel", 8, 11))
sketch19.addConstraint(Sketcher.Constraint("Parallel", 10, 13))
sketch19.addConstraint(Sketcher.Constraint("Parallel", 11, 14))
sketch19.addConstraint(Sketcher.Constraint("Parallel", 13, 16))
sketch19.addConstraint(Sketcher.Constraint("Parallel", 14, 17))
sketch19.addConstraint(Sketcher.Constraint("Horizontal", 1, 2, 3, 2))
sketch19.addConstraint(Sketcher.Constraint("Horizontal", 2, 2, 5, 2))
sketch19.addConstraint(Sketcher.Constraint("Horizontal", 4, 2, 6, 2))
sketch19.addConstraint(Sketcher.Constraint("Horizontal", 5, 2, 7, 2))
sketch19.addConstraint(Sketcher.Constraint("Horizontal", 8, 2, 9, 2))
sketch19.addConstraint(Sketcher.Constraint("Horizontal", 7, 2, 10, 2))
sketch19.addConstraint(Sketcher.Constraint("Horizontal", 11, 2, 12, 2))
sketch19.addConstraint(Sketcher.Constraint("Horizontal", 10, 2, 13, 2))
sketch19.addConstraint(Sketcher.Constraint("Horizontal", 14, 2, 15, 2))
sketch19.addConstraint(Sketcher.Constraint("Horizontal", 13, 2, 16, 2))
sketch19.addConstraint(Sketcher.Constraint("Equal", 0, 2))
sketch19.addConstraint(Sketcher.Constraint("DistanceY", -1, 1, 0, 2, Q("4 mm")))
sketch19.addConstraint(Sketcher.Constraint("DistanceX", -1, 1, 2, 2, Q("14 mm")))
sketch19.addConstraint(Sketcher.Constraint("DistanceX", -1, 1, 5, 2, Q("54 mm")))
sketch19.addConstraint(Sketcher.Constraint("DistanceX", -1, 1, 7, 2, Q("20 mm")))
sketch19.addConstraint(Sketcher.Constraint("DistanceX", -1, 1, 10, 2, Q("60 mm")))
sketch19.addConstraint(Sketcher.Constraint("DistanceX", -1, 1, 13, 2, Q("26 mm")))
sketch19.addConstraint(Sketcher.Constraint("DistanceX", -1, 1, 16, 2, Q("66 mm")))
sketch19.addConstraint(Sketcher.Constraint("DistanceX", 1, 1, 1, 2, Q("2.302944 mm")))
sketch19.addConstraint(Sketcher.Constraint("Distance", 0, Q("3.454416 mm")))
pocket8 = doc.addObject("PartDesign::Pocket", "Pocket007")
body.addObject(pocket8)
pocket8.Profile = sketch19
pocket8.Length = 9

# Sketch on XY plane
sketch20 = doc.addObject("Sketcher::SketchObject", "Sketch019")
body.addObject(sketch20)
sketch20.AttachmentSupport = (doc.XY_Plane, [""])
sketch20.MapMode = "FlatFace"
sketch20.AttachmentOffset = App.Placement(Vector(0, 0, 4), App.Rotation())
add_polygon(sketch20, [(12.8, 4), (12.8, -4), (15.2, -4), (15.2, 4)])  # lines 0-3
add_polygon(sketch20, [(52.8, 4), (52.8, -4), (55.2, -4), (55.2, 4)])  # lines 4-7
add_polygon(sketch20, [(18.8, 4), (18.8, -4), (21.2, -4), (21.2, 4)])  # lines 8-11
add_polygon(sketch20, [(58.8, 4), (58.8, -4), (61.2, -4), (61.2, 4)])  # lines 12-15
add_polygon(sketch20, [(24.8, 4), (24.8, -4), (27.2, -4), (27.2, 4)])  # lines 16-19
add_polygon(sketch20, [(64.8, 4), (64.8, -4), (67.2, -4), (67.2, 4)])  # lines 20-23
sketch20.addConstraint(Sketcher.Constraint("Vertical", 0))
sketch20.addConstraint(Sketcher.Constraint("Horizontal", 1))
sketch20.addConstraint(Sketcher.Constraint("Vertical", 2))
sketch20.addConstraint(Sketcher.Constraint("Horizontal", 3))
sketch20.addConstraint(Sketcher.Constraint("Vertical", 4))
sketch20.addConstraint(Sketcher.Constraint("Horizontal", 5))
sketch20.addConstraint(Sketcher.Constraint("Vertical", 6))
sketch20.addConstraint(Sketcher.Constraint("Horizontal", 7))
sketch20.addConstraint(Sketcher.Constraint("Vertical", 8))
sketch20.addConstraint(Sketcher.Constraint("Horizontal", 9))
sketch20.addConstraint(Sketcher.Constraint("Vertical", 10))
sketch20.addConstraint(Sketcher.Constraint("Horizontal", 11))
sketch20.addConstraint(Sketcher.Constraint("Vertical", 12))
sketch20.addConstraint(Sketcher.Constraint("Horizontal", 13))
sketch20.addConstraint(Sketcher.Constraint("Vertical", 14))
sketch20.addConstraint(Sketcher.Constraint("Horizontal", 15))
sketch20.addConstraint(Sketcher.Constraint("Vertical", 16))
sketch20.addConstraint(Sketcher.Constraint("Horizontal", 17))
sketch20.addConstraint(Sketcher.Constraint("Vertical", 18))
sketch20.addConstraint(Sketcher.Constraint("Horizontal", 19))
sketch20.addConstraint(Sketcher.Constraint("Vertical", 20))
sketch20.addConstraint(Sketcher.Constraint("Horizontal", 21))
sketch20.addConstraint(Sketcher.Constraint("Vertical", 22))
sketch20.addConstraint(Sketcher.Constraint("Horizontal", 23))
sketch20.addConstraint(Sketcher.Constraint("Horizontal", 1, 2, 4, 2))
sketch20.addConstraint(Sketcher.Constraint("Horizontal", 3, 2, 6, 2))
sketch20.addConstraint(Sketcher.Constraint("Horizontal", 5, 2, 8, 2))
sketch20.addConstraint(Sketcher.Constraint("Horizontal", 7, 2, 10, 2))
sketch20.addConstraint(Sketcher.Constraint("Horizontal", 9, 2, 12, 2))
sketch20.addConstraint(Sketcher.Constraint("Horizontal", 11, 2, 14, 2))
sketch20.addConstraint(Sketcher.Constraint("Horizontal", 13, 2, 16, 2))
sketch20.addConstraint(Sketcher.Constraint("Horizontal", 15, 2, 18, 2))
sketch20.addConstraint(Sketcher.Constraint("Horizontal", 17, 2, 20, 2))
sketch20.addConstraint(Sketcher.Constraint("Horizontal", 19, 2, 22, 2))
sketch20.addConstraint(Sketcher.Constraint("Equal", 3, 5))
sketch20.addConstraint(Sketcher.Constraint("Equal", 7, 9))
sketch20.addConstraint(Sketcher.Constraint("Equal", 11, 13))
sketch20.addConstraint(Sketcher.Constraint("Equal", 15, 17))
sketch20.addConstraint(Sketcher.Constraint("Equal", 19, 21))
sketch20.addConstraint(Sketcher.Constraint("DistanceY", 0, 2, 0, 1, Q("8 mm")))
sketch20.addConstraint(Sketcher.Constraint("DistanceY", 0, 2, -1, 1, Q("4 mm")))
sketch20.addConstraint(Sketcher.Constraint("DistanceX", 0, 2, 4, 2, Q("40 mm")))
sketch20.addConstraint(Sketcher.Constraint("DistanceX", 0, 2, 8, 2, Q("6 mm")))
sketch20.addConstraint(Sketcher.Constraint("DistanceX", 4, 2, 12, 2, Q("6 mm")))
sketch20.addConstraint(Sketcher.Constraint("DistanceX", 8, 2, 16, 2, Q("6 mm")))
sketch20.addConstraint(Sketcher.Constraint("DistanceX", 12, 2, 20, 2, Q("6 mm")))
sketch20.addConstraint(Sketcher.Constraint("DistanceX", 1, 1, 1, 2, Q("2.302944 mm")))
sketch20.addConstraint(Sketcher.Constraint("DistanceX", -1, 1, 0, 2, Q("12.848528 mm")))
pocket9 = doc.addObject("PartDesign::Pocket", "Pocket008")
body.addObject(pocket9)
pocket9.Profile = sketch20
pocket9.Length = 3

# Sketch on XZ plane
sketch21 = doc.addObject("Sketcher::SketchObject", "Sketch020")
body.addObject(sketch21)
sketch21.AttachmentSupport = (doc.XZ_Plane, [""])
sketch21.MapMode = "FlatFace"
sketch21.AttachmentOffset = App.Placement(Vector(0, 0, 5), App.Rotation())
add_polygon(sketch21, [(14, 9.7), (12, 4), (16, 4)])  # lines 0-2
add_polygon(sketch21, [(54, 9.7), (52, 4), (56, 4)])  # lines 3-5
add_polygon(sketch21, [(18, 4), (22, 4), (20, 9.7)])  # lines 6-8
add_polygon(sketch21, [(58, 4), (62, 4), (60, 9.7)])  # lines 9-11
add_polygon(sketch21, [(24, 4), (28, 4), (26, 9.7)])  # lines 12-14
add_polygon(sketch21, [(64, 4), (68, 4), (66, 9.7)])  # lines 15-17
sketch21.addConstraint(Sketcher.Constraint("Horizontal", 1))
sketch21.addConstraint(Sketcher.Constraint("Horizontal", 4))
sketch21.addConstraint(Sketcher.Constraint("Horizontal", 6))
sketch21.addConstraint(Sketcher.Constraint("Horizontal", 9))
sketch21.addConstraint(Sketcher.Constraint("Horizontal", 12))
sketch21.addConstraint(Sketcher.Constraint("Horizontal", 15))
sketch21.addConstraint(Sketcher.Constraint("Parallel", 0, 3))
sketch21.addConstraint(Sketcher.Constraint("Parallel", 2, 5))
sketch21.addConstraint(Sketcher.Constraint("Parallel", 5, 7))
sketch21.addConstraint(Sketcher.Constraint("Parallel", 3, 8))
sketch21.addConstraint(Sketcher.Constraint("Parallel", 7, 10))
sketch21.addConstraint(Sketcher.Constraint("Parallel", 8, 11))
sketch21.addConstraint(Sketcher.Constraint("Parallel", 10, 13))
sketch21.addConstraint(Sketcher.Constraint("Parallel", 11, 14))
sketch21.addConstraint(Sketcher.Constraint("Parallel", 13, 16))
sketch21.addConstraint(Sketcher.Constraint("Parallel", 14, 17))
sketch21.addConstraint(Sketcher.Constraint("Horizontal", 1, 2, 3, 2))
sketch21.addConstraint(Sketcher.Constraint("Horizontal", 2, 2, 5, 2))
sketch21.addConstraint(Sketcher.Constraint("Horizontal", 4, 2, 6, 2))
sketch21.addConstraint(Sketcher.Constraint("Horizontal", 5, 2, 7, 2))
sketch21.addConstraint(Sketcher.Constraint("Horizontal", 8, 2, 9, 2))
sketch21.addConstraint(Sketcher.Constraint("Horizontal", 7, 2, 10, 2))
sketch21.addConstraint(Sketcher.Constraint("Horizontal", 11, 2, 12, 2))
sketch21.addConstraint(Sketcher.Constraint("Horizontal", 10, 2, 13, 2))
sketch21.addConstraint(Sketcher.Constraint("Horizontal", 14, 2, 15, 2))
sketch21.addConstraint(Sketcher.Constraint("Horizontal", 13, 2, 16, 2))
sketch21.addConstraint(Sketcher.Constraint("Equal", 0, 2))
sketch21.addConstraint(Sketcher.Constraint("DistanceX", 1, 1, 1, 2, Q("4 mm")))
sketch21.addConstraint(Sketcher.Constraint("Distance", 0, Q("6 mm")))
sketch21.addConstraint(Sketcher.Constraint("DistanceX", -1, 1, 0, 2, Q("12 mm")))
sketch21.addConstraint(Sketcher.Constraint("DistanceY", -1, 1, 0, 2, Q("4 mm")))
sketch21.addConstraint(Sketcher.Constraint("DistanceX", -1, 1, 3, 2, Q("52 mm")))
sketch21.addConstraint(Sketcher.Constraint("DistanceX", -1, 1, 6, 2, Q("22 mm")))
sketch21.addConstraint(Sketcher.Constraint("DistanceX", -1, 1, 9, 2, Q("62 mm")))
sketch21.addConstraint(Sketcher.Constraint("DistanceX", -1, 1, 12, 2, Q("28 mm")))
sketch21.addConstraint(Sketcher.Constraint("DistanceX", -1, 1, 15, 2, Q("68 mm")))
pad12 = doc.addObject("PartDesign::Pad", "Pad011")
body.addObject(pad12)
pad12.Profile = sketch21
pad12.Length = 1
pad12.Reversed = True
doc.recompute()

fillet = doc.addObject("PartDesign::Fillet", "Fillet")
body.addObject(fillet)
fillet.Base = (pad12, edges_at(pad12, [(10, -5, 2)]))
fillet.Radius = 2
doc.recompute()

fillet2 = doc.addObject("PartDesign::Fillet", "Fillet001")
body.addObject(fillet2)
fillet2.Base = (fillet, edges_at(fillet, [
    (30, 5, 2),
    (50, 5, 2),
    (10, 5, 2),
    (70, 5, 2),
    (50, -5, 2),
    (70, -5, 2),
    (30, -5, 2),
]))
fillet2.Radius = 2

doc.recompute()
